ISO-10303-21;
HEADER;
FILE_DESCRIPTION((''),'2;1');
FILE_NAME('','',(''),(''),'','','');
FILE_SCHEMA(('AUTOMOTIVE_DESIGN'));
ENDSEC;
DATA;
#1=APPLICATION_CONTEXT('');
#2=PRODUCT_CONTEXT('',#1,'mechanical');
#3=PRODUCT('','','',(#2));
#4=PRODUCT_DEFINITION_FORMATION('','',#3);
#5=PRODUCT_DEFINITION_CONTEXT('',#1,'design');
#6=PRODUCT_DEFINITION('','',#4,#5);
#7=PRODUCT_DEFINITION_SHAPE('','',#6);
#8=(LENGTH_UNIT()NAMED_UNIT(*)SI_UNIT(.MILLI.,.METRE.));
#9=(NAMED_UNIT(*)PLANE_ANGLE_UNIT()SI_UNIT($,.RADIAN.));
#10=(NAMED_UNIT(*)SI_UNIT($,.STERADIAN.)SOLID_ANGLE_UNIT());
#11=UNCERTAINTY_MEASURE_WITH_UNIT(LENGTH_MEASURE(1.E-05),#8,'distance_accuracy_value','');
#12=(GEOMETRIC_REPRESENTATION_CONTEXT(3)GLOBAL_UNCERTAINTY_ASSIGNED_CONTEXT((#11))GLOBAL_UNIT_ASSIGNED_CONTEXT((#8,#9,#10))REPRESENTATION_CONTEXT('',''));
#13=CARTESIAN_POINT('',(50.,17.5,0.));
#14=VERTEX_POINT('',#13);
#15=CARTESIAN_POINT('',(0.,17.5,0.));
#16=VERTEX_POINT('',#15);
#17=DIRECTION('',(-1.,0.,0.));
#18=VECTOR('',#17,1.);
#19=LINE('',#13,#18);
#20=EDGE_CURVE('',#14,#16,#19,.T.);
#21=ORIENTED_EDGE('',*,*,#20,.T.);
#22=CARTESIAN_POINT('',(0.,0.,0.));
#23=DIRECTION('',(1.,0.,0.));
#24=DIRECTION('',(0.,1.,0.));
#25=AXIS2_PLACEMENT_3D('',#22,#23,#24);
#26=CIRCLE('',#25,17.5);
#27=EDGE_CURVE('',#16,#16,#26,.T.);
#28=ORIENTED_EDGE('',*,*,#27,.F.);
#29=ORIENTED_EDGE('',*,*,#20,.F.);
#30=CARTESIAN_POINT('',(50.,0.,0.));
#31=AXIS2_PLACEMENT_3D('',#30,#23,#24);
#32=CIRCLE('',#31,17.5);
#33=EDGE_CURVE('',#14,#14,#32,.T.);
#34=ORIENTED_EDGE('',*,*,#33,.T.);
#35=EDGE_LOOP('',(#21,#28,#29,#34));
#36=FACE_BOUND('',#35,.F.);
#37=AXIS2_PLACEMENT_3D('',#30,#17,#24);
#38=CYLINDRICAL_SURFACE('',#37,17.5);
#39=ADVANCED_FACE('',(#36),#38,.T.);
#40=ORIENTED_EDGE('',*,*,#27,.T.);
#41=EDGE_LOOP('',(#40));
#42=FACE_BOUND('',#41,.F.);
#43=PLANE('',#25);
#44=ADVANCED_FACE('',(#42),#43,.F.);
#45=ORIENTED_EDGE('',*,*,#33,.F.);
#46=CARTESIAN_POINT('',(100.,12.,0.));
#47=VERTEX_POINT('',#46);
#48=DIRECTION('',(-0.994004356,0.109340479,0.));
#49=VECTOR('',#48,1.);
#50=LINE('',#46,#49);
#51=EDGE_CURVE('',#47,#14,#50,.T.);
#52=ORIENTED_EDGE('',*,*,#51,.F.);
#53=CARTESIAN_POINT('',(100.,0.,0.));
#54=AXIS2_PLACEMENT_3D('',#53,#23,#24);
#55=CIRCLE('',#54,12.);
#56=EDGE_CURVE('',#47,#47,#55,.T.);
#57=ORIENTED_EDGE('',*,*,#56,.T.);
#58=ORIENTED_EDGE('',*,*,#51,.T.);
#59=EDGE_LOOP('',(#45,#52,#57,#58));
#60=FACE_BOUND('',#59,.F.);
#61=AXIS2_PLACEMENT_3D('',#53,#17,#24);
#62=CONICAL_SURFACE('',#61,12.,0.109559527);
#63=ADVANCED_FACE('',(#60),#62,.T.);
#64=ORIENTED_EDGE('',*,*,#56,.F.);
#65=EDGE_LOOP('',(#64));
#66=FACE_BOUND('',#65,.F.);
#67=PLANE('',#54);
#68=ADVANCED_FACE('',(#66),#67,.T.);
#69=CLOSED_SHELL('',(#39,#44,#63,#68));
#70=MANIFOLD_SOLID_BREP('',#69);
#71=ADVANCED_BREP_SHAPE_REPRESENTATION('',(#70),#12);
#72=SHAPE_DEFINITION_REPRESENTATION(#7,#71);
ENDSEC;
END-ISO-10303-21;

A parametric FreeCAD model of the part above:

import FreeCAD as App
import Part
import Sketcher

V = App.Vector


def add_polygon(sketch, points):
    """Adds a closed chain of lines whose ends are joined by coincident constraints."""
    first, n = sketch.GeometryCount, len(points)
    for a, b in zip(points, points[1:] + points[:1]):
        sketch.addGeometry(Part.LineSegment(App.Vector(*a, 0), App.Vector(*b, 0)), False)
    for i in range(n):
        sketch.addConstraint(Sketcher.Constraint("Coincident", first + i, 2, first + (i + 1) % n, 1))

doc = App.newDocument("Part")
body = doc.addObject("PartDesign::Body", "Body")

sketch1 = body.newObject("Sketcher::SketchObject", "Sketch")
sketch1.AttachmentSupport = (doc.getObject("XY_Plane"), [""])
sketch1.MapMode = "FlatFace"
add_polygon(sketch1, [(0, 18), (0, 0), (100, 0), (100, 12), (50, 18)])
sketch1.addConstraint(Sketcher.Constraint("Vertical", 0))
sketch1.addConstraint(Sketcher.Constraint("Horizontal", 1))
sketch1.addConstraint(Sketcher.Constraint("Vertical", 2))
sketch1.addConstraint(Sketcher.Constraint("Horizontal", 4))
sketch1.addConstraint(Sketcher.Constraint("Coincident", 0, 2, -1, 1))
sketch1.addConstraint(Sketcher.Constraint("DistanceX", 1, 1, 1, 2, 100.0))
sketch1.addConstraint(Sketcher.Constraint("DistanceX", 4, 2, 4, 1, 50.0))
sketch1.addConstraint(Sketcher.Constraint("DistanceY", 2, 1, 2, 2, 12.0))
sketch1.addConstraint(Sketcher.Constraint("DistanceY", 0, 2, 0, 1, 17.5))
revolution = body.newObject("PartDesign::Revolution", "Revolution")
revolution.Profile = sketch1
revolution.ReferenceAxis = (sketch1, ["H_Axis"])
revolution.Angle = 360

doc.recompute()
